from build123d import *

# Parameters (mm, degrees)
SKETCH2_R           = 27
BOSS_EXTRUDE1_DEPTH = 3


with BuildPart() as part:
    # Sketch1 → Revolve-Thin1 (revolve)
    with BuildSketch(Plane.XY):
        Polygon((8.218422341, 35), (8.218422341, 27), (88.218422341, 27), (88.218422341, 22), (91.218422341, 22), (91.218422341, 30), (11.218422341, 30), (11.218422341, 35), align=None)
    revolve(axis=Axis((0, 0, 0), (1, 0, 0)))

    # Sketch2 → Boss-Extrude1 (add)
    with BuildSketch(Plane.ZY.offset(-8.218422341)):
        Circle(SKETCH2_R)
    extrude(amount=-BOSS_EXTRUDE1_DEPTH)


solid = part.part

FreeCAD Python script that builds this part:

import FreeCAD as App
import Part
import Sketcher


def add_polygon(sketch, points):
    """Adds a closed chain of lines whose ends are joined by coincident constraints."""
    first, n = sketch.GeometryCount, len(points)
    for a, b in zip(points, points[1:] + points[:1]):
        sketch.addGeometry(Part.LineSegment(App.Vector(*a, 0), App.Vector(*b, 0)), False)
    for i in range(n):
        sketch.addConstraint(Sketcher.Constraint("Coincident", first + i, 2, first + (i + 1) % n, 1))

doc = App.newDocument("Part")
body = doc.addObject("PartDesign::Body", "Body")

# Sketch on XY plane
sketch1 = body.newObject("Sketcher::SketchObject", "Sketch")
sketch1.AttachmentSupport = (doc.getObject("XY_Plane"), [""])
sketch1.MapMode = "FlatFace"
add_polygon(sketch1, [(8.218422, 35), (8.218422, 27), (88.218422, 27), (88.218422, 22), (91.218422, 22), (91.218422, 30), (11.218422, 30), (11.218422, 35)])  # lines 0-7
sketch1.addConstraint([
    Sketcher.Constraint("Vertical", 0),
    Sketcher.Constraint("Horizontal", 1),
    Sketcher.Constraint("Vertical", 2),
    Sketcher.Constraint("Horizontal", 3),
    Sketcher.Constraint("Vertical", 4),
    Sketcher.Constraint("Horizontal", 5),
    Sketcher.Constraint("Vertical", 6),
    Sketcher.Constraint("Horizontal", 7),
    Sketcher.Constraint("Equal", 1, 5),
    Sketcher.Constraint("Equal", 0, 4),
    Sketcher.Constraint("DistanceX", 1, 1, 1, 2, 80.0),
    Sketcher.Constraint("DistanceX", 3, 1, 3, 2, 3.0),
    Sketcher.Constraint("DistanceY", 0, 2, 0, 1, 8.0),
    Sketcher.Constraint("DistanceY", 2, 2, 2, 1, 5.0),
    Sketcher.Constraint("DistanceY", -1, 1, 0, 2, 27.0),
    Sketcher.Constraint("DistanceX", -1, 1, 0, 2, 8.218422),
])
revolution = body.newObject("PartDesign::Revolution", "Revolution")
revolution.Profile = sketch1
revolution.ReferenceAxis = (sketch1, ["H_Axis"])
revolution.Angle = 360

# Sketch on YZ plane
sketch2 = body.newObject("Sketcher::SketchObject", "Sketch001")
sketch2.AttachmentSupport = (doc.getObject("YZ_Plane"), [""])
sketch2.MapMode = "FlatFace"
sketch2.AttachmentOffset = App.Placement(App.Vector(0, 0, 8.218422), App.Rotation())
sketch2.addGeometry(Part.Circle(App.Vector(0, 0, 0), App.Vector(0, 0, 1), 27), False)
sketch2.addConstraint([
    Sketcher.Constraint("Coincident", 0, 3, -1, 1),
    Sketcher.Constraint("Diameter", 0, 54.0),
])
pad1 = body.newObject("PartDesign::Pad", "Pad")
pad1.Profile = sketch2
pad1.Length = 3

doc.recompute()
